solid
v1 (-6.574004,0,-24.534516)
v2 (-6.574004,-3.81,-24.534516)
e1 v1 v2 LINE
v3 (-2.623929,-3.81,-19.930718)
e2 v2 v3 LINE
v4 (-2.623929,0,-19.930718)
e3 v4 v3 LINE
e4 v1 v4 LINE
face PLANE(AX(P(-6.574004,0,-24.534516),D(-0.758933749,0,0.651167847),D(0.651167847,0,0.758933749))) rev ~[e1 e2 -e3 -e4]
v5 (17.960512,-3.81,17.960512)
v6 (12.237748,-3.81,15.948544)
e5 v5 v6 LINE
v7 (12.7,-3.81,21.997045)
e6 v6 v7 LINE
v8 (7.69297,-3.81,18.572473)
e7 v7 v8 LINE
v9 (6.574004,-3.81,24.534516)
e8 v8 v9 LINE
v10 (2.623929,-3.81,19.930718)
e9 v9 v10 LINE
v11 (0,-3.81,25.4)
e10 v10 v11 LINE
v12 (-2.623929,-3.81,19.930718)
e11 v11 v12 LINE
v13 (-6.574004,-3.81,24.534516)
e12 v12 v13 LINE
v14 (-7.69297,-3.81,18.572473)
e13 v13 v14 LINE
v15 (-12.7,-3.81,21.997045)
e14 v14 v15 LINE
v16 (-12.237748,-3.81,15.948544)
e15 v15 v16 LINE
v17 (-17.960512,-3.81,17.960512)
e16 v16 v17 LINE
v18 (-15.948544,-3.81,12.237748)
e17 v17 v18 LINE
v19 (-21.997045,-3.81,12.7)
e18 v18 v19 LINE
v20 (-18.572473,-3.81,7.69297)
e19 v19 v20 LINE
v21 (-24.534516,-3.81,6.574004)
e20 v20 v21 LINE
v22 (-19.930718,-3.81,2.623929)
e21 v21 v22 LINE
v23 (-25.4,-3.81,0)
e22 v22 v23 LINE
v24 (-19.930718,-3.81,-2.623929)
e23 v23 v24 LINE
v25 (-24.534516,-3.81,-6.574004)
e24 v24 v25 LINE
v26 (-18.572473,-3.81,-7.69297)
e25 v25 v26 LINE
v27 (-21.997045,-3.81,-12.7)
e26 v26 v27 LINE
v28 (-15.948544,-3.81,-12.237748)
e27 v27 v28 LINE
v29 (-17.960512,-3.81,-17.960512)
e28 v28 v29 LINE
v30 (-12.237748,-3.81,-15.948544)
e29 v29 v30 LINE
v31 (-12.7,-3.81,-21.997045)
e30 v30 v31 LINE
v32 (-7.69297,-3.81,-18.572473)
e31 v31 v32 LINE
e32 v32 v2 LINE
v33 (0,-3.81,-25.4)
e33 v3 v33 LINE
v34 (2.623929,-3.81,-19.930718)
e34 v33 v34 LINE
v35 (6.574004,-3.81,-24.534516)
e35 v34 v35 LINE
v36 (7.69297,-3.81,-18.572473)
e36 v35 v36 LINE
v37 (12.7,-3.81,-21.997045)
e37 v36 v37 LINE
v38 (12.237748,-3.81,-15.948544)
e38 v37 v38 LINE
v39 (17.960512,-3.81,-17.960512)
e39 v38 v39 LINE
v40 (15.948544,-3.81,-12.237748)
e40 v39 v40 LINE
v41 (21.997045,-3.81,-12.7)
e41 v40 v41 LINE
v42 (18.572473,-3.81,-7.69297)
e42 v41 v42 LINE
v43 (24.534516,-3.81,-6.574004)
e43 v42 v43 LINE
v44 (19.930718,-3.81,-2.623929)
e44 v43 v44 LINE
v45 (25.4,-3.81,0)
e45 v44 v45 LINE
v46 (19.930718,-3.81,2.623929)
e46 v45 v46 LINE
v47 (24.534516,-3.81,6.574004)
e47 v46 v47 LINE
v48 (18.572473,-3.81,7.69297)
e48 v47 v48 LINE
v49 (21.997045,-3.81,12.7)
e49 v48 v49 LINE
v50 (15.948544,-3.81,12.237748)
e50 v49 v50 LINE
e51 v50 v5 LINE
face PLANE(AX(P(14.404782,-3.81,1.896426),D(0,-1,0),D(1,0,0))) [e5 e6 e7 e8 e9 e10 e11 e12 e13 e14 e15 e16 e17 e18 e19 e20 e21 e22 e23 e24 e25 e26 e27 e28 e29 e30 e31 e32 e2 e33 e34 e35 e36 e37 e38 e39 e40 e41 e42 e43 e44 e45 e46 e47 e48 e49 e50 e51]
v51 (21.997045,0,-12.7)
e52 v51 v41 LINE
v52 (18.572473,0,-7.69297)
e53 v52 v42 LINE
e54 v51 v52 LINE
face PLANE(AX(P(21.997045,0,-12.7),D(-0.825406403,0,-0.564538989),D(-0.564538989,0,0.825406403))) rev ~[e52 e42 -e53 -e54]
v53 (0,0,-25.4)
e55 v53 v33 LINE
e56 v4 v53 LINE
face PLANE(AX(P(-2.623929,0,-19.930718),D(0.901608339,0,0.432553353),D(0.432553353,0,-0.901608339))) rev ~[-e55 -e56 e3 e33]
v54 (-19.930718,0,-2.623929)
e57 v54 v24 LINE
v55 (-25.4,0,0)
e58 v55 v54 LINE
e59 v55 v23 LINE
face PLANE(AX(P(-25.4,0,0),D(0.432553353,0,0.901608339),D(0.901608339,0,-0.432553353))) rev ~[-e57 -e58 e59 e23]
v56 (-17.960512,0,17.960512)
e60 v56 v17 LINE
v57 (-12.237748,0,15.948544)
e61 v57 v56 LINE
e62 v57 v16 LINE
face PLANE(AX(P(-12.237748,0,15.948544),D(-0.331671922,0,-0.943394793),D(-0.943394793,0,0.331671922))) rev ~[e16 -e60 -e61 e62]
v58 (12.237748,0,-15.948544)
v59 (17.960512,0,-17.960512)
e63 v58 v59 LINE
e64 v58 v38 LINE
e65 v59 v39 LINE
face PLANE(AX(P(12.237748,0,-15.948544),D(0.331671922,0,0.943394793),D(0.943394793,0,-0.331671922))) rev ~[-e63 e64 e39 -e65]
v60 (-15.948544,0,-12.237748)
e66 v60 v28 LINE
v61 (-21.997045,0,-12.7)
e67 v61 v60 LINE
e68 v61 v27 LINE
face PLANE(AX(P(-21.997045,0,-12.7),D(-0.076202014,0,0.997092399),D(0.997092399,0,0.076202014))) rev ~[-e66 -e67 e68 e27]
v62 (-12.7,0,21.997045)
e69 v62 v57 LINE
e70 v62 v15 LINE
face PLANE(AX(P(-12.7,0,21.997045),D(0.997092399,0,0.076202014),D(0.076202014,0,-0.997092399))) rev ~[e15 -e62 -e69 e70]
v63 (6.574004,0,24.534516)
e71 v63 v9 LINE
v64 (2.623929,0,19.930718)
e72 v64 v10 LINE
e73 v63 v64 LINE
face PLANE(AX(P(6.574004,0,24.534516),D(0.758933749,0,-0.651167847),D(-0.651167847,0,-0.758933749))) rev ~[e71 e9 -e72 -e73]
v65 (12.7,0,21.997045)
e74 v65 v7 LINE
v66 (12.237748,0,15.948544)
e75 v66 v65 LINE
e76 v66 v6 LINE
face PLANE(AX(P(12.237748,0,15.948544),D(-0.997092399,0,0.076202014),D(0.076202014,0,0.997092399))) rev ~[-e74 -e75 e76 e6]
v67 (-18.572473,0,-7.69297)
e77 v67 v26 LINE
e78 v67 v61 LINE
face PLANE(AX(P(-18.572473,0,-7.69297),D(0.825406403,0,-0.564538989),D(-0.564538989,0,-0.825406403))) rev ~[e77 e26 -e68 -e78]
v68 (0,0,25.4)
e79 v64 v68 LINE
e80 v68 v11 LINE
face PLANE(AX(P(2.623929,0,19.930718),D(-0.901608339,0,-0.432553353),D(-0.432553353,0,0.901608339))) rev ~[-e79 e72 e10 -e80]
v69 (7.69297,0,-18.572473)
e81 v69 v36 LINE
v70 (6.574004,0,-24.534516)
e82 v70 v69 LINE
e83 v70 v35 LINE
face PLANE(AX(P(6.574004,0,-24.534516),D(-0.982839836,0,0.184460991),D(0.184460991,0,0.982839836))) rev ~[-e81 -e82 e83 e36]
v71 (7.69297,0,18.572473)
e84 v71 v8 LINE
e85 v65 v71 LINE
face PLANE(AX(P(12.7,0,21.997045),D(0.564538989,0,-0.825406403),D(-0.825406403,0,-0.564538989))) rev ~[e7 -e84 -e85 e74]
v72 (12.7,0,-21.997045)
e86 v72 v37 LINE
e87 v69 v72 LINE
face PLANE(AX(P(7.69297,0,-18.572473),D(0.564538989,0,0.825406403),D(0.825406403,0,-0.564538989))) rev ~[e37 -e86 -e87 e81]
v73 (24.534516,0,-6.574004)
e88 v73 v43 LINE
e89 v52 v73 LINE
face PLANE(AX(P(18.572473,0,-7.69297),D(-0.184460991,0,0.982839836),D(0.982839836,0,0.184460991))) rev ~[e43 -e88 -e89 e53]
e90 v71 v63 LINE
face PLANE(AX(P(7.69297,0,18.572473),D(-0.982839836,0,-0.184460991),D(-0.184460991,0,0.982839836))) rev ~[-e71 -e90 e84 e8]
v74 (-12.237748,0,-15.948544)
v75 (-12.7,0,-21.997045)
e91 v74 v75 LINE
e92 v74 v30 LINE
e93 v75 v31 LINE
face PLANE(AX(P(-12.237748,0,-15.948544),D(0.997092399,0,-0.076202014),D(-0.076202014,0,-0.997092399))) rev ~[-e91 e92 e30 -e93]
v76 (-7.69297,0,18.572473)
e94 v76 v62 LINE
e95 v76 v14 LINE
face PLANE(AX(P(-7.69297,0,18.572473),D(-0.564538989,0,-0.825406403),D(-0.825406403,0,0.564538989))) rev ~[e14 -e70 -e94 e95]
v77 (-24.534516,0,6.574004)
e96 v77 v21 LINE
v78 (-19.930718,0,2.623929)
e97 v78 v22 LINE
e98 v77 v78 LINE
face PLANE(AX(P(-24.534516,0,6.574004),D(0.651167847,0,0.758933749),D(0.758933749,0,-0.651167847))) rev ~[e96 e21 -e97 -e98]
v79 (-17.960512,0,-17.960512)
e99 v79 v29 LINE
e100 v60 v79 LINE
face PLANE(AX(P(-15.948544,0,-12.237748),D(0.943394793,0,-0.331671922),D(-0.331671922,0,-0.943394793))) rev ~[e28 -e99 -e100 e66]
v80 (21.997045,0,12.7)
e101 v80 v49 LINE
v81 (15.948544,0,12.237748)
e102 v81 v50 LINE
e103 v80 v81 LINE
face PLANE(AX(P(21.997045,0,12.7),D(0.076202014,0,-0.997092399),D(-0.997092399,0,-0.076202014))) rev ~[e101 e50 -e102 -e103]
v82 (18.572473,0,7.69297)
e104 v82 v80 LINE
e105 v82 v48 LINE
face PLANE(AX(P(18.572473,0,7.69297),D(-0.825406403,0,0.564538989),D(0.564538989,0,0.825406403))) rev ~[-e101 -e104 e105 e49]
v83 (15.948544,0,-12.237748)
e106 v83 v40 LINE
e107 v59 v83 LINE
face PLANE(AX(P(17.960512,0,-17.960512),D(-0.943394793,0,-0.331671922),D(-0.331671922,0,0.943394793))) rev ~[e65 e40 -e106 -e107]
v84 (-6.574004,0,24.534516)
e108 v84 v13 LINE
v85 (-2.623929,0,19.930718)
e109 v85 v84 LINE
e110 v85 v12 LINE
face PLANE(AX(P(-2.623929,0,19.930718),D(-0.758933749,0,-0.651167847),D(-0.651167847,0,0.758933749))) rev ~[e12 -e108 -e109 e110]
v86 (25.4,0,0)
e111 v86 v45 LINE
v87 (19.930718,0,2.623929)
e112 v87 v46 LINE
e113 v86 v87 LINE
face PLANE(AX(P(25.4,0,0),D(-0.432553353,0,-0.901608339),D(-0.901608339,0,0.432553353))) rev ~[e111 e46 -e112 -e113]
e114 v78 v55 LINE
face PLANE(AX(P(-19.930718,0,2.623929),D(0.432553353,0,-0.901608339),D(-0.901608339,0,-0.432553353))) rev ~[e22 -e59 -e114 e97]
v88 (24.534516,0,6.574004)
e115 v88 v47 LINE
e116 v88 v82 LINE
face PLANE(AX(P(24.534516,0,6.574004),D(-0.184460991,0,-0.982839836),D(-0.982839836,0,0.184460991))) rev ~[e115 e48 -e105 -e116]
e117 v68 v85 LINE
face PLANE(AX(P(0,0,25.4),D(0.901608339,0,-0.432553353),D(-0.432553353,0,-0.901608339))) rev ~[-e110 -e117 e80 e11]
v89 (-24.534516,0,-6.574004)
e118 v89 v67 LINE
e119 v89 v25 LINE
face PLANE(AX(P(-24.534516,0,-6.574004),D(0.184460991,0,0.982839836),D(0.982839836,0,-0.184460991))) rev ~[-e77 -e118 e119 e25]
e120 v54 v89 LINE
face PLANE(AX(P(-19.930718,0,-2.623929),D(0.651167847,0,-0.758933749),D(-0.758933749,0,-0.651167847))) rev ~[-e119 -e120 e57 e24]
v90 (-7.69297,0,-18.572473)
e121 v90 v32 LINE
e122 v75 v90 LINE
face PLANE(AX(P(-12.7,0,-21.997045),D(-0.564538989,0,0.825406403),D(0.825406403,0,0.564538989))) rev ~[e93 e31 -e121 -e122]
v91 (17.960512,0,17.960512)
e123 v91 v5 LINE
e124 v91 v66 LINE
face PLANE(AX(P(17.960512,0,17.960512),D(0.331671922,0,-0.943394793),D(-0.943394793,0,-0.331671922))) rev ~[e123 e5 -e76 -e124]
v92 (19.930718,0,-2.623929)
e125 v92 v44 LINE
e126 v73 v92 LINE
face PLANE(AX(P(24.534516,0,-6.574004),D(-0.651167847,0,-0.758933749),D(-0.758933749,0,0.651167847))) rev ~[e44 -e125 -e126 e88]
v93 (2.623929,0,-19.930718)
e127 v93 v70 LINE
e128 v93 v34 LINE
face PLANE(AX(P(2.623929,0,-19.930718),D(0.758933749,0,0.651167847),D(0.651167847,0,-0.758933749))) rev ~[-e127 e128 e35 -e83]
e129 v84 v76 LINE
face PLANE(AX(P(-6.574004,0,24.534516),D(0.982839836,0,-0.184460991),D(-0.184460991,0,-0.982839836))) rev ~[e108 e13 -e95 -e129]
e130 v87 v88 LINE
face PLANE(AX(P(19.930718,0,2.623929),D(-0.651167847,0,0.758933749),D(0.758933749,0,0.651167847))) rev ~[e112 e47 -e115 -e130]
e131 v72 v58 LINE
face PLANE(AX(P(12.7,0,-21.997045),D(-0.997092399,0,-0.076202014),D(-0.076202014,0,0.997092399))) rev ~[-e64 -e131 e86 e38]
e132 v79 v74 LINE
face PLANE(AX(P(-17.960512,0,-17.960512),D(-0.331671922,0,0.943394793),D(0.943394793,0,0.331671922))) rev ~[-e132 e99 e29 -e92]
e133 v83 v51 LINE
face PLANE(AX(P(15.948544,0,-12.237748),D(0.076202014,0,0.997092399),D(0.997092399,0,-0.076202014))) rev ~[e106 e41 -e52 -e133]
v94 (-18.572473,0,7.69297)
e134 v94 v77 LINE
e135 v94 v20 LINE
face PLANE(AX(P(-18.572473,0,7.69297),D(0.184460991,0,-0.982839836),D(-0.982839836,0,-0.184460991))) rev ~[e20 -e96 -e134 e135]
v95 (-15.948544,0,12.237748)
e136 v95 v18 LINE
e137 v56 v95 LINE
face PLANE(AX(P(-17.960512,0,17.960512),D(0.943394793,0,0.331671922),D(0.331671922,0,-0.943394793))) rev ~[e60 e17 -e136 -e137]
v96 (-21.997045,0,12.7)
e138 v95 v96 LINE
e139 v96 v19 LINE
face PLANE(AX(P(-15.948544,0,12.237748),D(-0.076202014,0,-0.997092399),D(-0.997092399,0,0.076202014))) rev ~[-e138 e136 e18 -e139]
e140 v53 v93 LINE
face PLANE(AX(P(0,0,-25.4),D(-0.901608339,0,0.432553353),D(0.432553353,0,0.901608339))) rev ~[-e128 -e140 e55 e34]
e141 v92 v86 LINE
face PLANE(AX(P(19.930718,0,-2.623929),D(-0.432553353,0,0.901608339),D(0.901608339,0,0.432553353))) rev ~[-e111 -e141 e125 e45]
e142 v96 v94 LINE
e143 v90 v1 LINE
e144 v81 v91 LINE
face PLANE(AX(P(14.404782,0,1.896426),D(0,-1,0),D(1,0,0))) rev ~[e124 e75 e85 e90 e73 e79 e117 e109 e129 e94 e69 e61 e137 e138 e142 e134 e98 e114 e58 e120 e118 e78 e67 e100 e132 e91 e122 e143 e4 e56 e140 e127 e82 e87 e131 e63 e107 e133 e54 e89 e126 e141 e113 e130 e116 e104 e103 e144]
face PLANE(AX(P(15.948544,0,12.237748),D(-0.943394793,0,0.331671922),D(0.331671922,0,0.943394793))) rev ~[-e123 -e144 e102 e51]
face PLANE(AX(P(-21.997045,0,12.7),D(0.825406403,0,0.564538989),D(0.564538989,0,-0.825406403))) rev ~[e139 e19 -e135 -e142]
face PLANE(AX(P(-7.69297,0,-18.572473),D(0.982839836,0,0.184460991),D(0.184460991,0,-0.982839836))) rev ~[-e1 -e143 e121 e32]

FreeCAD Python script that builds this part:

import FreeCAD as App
import Part
import Sketcher

V = App.Vector
Q = App.Units.Quantity

doc = App.newDocument("Part")
params = doc.addObject("Spreadsheet::Sheet", "Params")
for row, (alias, value) in enumerate([
    ("pad1_length", "0.15 in"),
], start=1):
    params.set(f"A{row}", alias)
    params.set(f"B{row}", "=" + value)
    params.setAlias(f"B{row}", alias)

body = doc.addObject("PartDesign::Body", "Body")

# Sketch on XZ plane
sketch1 = body.newObject("Sketcher::SketchObject", "Sketch")
sketch1.AttachmentSupport = (doc.getObject("XZ_Plane"), [""])
sketch1.MapMode = "FlatFace"
sketch1.addGeometry(Part.LineSegment(V(25, -7, 0), V(20, -3, 0)), False)
sketch1.addGeometry(Part.LineSegment(V(20, -3, 0), V(25, 0, 0)), False)
sketch1.addGeometry(Part.LineSegment(V(25, 0, 0), V(20, 3, 0)), False)
sketch1.addGeometry(Part.LineSegment(V(20, 3, 0), V(25, 7, 0)), False)
sketch1.addGeometry(Part.LineSegment(V(25, 7, 0), V(19, 8, 0)), False)
sketch1.addGeometry(Part.LineSegment(V(19, 8, 0), V(22, 13, 0)), False)
sketch1.addGeometry(Part.LineSegment(V(22, 13, 0), V(16, 12, 0)), False)
sketch1.addGeometry(Part.LineSegment(V(16, 12, 0), V(18, 18, 0)), False)
sketch1.addGeometry(Part.LineSegment(V(18, 18, 0), V(12, 16, 0)), False)
sketch1.addGeometry(Part.LineSegment(V(12, 16, 0), V(13, 22, 0)), False)
sketch1.addGeometry(Part.LineSegment(V(13, 22, 0), V(8, 19, 0)), False)
sketch1.addGeometry(Part.LineSegment(V(8, 19, 0), V(7, 25, 0)), False)
sketch1.addGeometry(Part.LineSegment(V(7, 25, 0), V(3, 20, 0)), False)
sketch1.addGeometry(Part.LineSegment(V(3, 20, 0), V(0, 25, 0)), False)
sketch1.addGeometry(Part.LineSegment(V(0, 25, 0), V(-3, 20, 0)), False)
sketch1.addGeometry(Part.LineSegment(V(-3, 20, 0), V(-7, 25, 0)), False)
sketch1.addGeometry(Part.LineSegment(V(-7, 25, 0), V(-8, 19, 0)), False)
sketch1.addGeometry(Part.LineSegment(V(-8, 19, 0), V(-13, 22, 0)), False)
sketch1.addGeometry(Part.LineSegment(V(-13, 22, 0), V(-12, 16, 0)), False)
sketch1.addGeometry(Part.LineSegment(V(-12, 16, 0), V(-18, 18, 0)), False)
sketch1.addGeometry(Part.LineSegment(V(-18, 18, 0), V(-16, 12, 0)), False)
sketch1.addGeometry(Part.LineSegment(V(-16, 12, 0), V(-22, 13, 0)), False)
sketch1.addGeometry(Part.LineSegment(V(-22, 13, 0), V(-19, 8, 0)), False)
sketch1.addGeometry(Part.LineSegment(V(-19, 8, 0), V(-25, 7, 0)), False)
sketch1.addGeometry(Part.LineSegment(V(-25, 7, 0), V(-20, 3, 0)), False)
sketch1.addGeometry(Part.LineSegment(V(-20, 3, 0), V(-25, 0, 0)), False)
sketch1.addGeometry(Part.LineSegment(V(-25, 0, 0), V(-20, -3, 0)), False)
sketch1.addGeometry(Part.LineSegment(V(-20, -3, 0), V(-25, -7, 0)), False)
sketch1.addGeometry(Part.LineSegment(V(-25, -7, 0), V(-19, -8, 0)), False)
sketch1.addGeometry(Part.LineSegment(V(-19, -8, 0), V(-22, -13, 0)), False)
sketch1.addGeometry(Part.LineSegment(V(-22, -13, 0), V(-16, -12, 0)), False)
sketch1.addGeometry(Part.LineSegment(V(-16, -12, 0), V(-18, -18, 0)), False)
sketch1.addGeometry(Part.LineSegment(V(-18, -18, 0), V(-12, -16, 0)), False)
sketch1.addGeometry(Part.LineSegment(V(-12, -16, 0), V(-13, -22, 0)), False)
sketch1.addGeometry(Part.LineSegment(V(-13, -22, 0), V(-8, -19, 0)), False)
sketch1.addGeometry(Part.LineSegment(V(-8, -19, 0), V(-7, -25, 0)), False)
sketch1.addGeometry(Part.LineSegment(V(-7, -25, 0), V(-3, -20, 0)), False)
sketch1.addGeometry(Part.LineSegment(V(-3, -20, 0), V(0, -25, 0)), False)
sketch1.addGeometry(Part.LineSegment(V(0, -25, 0), V(3, -20, 0)), False)
sketch1.addGeometry(Part.LineSegment(V(3, -20, 0), V(7, -25, 0)), False)
sketch1.addGeometry(Part.LineSegment(V(7, -25, 0), V(8, -19, 0)), False)
sketch1.addGeometry(Part.LineSegment(V(8, -19, 0), V(13, -22, 0)), False)
sketch1.addGeometry(Part.LineSegment(V(13, -22, 0), V(12, -16, 0)), False)
sketch1.addGeometry(Part.LineSegment(V(12, -16, 0), V(18, -18, 0)), False)
sketch1.addGeometry(Part.LineSegment(V(18, -18, 0), V(16, -12, 0)), False)
sketch1.addGeometry(Part.LineSegment(V(16, -12, 0), V(22, -13, 0)), False)
sketch1.addGeometry(Part.LineSegment(V(22, -13, 0), V(19, -8, 0)), False)
sketch1.addGeometry(Part.LineSegment(V(19, -8, 0), V(25, -7, 0)), False)
sketch1.addConstraint(Sketcher.Constraint("Coincident", 0, 2, 1, 1))
sketch1.addConstraint(Sketcher.Constraint("Coincident", 1, 2, 2, 1))
sketch1.addConstraint(Sketcher.Constraint("Coincident", 2, 2, 3, 1))
sketch1.addConstraint(Sketcher.Constraint("Coincident", 3, 2, 4, 1))
sketch1.addConstraint(Sketcher.Constraint("Coincident", 4, 2, 5, 1))
sketch1.addConstraint(Sketcher.Constraint("Coincident", 5, 2, 6, 1))
sketch1.addConstraint(Sketcher.Constraint("Coincident", 6, 2, 7, 1))
sketch1.addConstraint(Sketcher.Constraint("Coincident", 7, 2, 8, 1))
sketch1.addConstraint(Sketcher.Constraint("Coincident", 8, 2, 9, 1))
sketch1.addConstraint(Sketcher.Constraint("Coincident", 9, 2, 10, 1))
sketch1.addConstraint(Sketcher.Constraint("Coincident", 10, 2, 11, 1))
sketch1.addConstraint(Sketcher.Constraint("Coincident", 11, 2, 12, 1))
sketch1.addConstraint(Sketcher.Constraint("Coincident", 12, 2, 13, 1))
sketch1.addConstraint(Sketcher.Constraint("Coincident", 13, 2, 14, 1))
sketch1.addConstraint(Sketcher.Constraint("Coincident", 14, 2, 15, 1))
sketch1.addConstraint(Sketcher.Constraint("Coincident", 15, 2, 16, 1))
sketch1.addConstraint(Sketcher.Constraint("Coincident", 16, 2, 17, 1))
sketch1.addConstraint(Sketcher.Constraint("Coincident", 17, 2, 18, 1))
sketch1.addConstraint(Sketcher.Constraint("Coincident", 18, 2, 19, 1))
sketch1.addConstraint(Sketcher.Constraint("Coincident", 19, 2, 20, 1))
sketch1.addConstraint(Sketcher.Constraint("Coincident", 20, 2, 21, 1))
sketch1.addConstraint(Sketcher.Constraint("Coincident", 21, 2, 22, 1))
sketch1.addConstraint(Sketcher.Constraint("Coincident", 22, 2, 23, 1))
sketch1.addConstraint(Sketcher.Constraint("Coincident", 23, 2, 24, 1))
sketch1.addConstraint(Sketcher.Constraint("Coincident", 24, 2, 25, 1))
sketch1.addConstraint(Sketcher.Constraint("Coincident", 25, 2, 26, 1))
sketch1.addConstraint(Sketcher.Constraint("Coincident", 26, 2, 27, 1))
sketch1.addConstraint(Sketcher.Constraint("Coincident", 27, 2, 28, 1))
sketch1.addConstraint(Sketcher.Constraint("Coincident", 28, 2, 29, 1))
sketch1.addConstraint(Sketcher.Constraint("Coincident", 29, 2, 30, 1))
sketch1.addConstraint(Sketcher.Constraint("Coincident", 30, 2, 31, 1))
sketch1.addConstraint(Sketcher.Constraint("Coincident", 31, 2, 32, 1))
sketch1.addConstraint(Sketcher.Constraint("Coincident", 32, 2, 33, 1))
sketch1.addConstraint(Sketcher.Constraint("Coincident", 33, 2, 34, 1))
sketch1.addConstraint(Sketcher.Constraint("Coincident", 34, 2, 35, 1))
sketch1.addConstraint(Sketcher.Constraint("Coincident", 35, 2, 36, 1))
sketch1.addConstraint(Sketcher.Constraint("Coincident", 36, 2, 37, 1))
sketch1.addConstraint(Sketcher.Constraint("Coincident", 37, 2, 38, 1))
sketch1.addConstraint(Sketcher.Constraint("Coincident", 38, 2, 39, 1))
sketch1.addConstraint(Sketcher.Constraint("Coincident", 39, 2, 40, 1))
sketch1.addConstraint(Sketcher.Constraint("Coincident", 40, 2, 41, 1))
sketch1.addConstraint(Sketcher.Constraint("Coincident", 41, 2, 42, 1))
sketch1.addConstraint(Sketcher.Constraint("Coincident", 42, 2, 43, 1))
sketch1.addConstraint(Sketcher.Constraint("Coincident", 43, 2, 44, 1))
sketch1.addConstraint(Sketcher.Constraint("Coincident", 44, 2, 45, 1))
sketch1.addConstraint(Sketcher.Constraint("Coincident", 45, 2, 46, 1))
sketch1.addConstraint(Sketcher.Constraint("Coincident", 46, 2, 47, 1))
sketch1.addConstraint(Sketcher.Constraint("Coincident", 47, 2, 0, 1))
sketch1.addConstraint(Sketcher.Constraint("Symmetric", 0, 2, 24, 2, -1, 1))
sketch1.addConstraint(Sketcher.Constraint("Symmetric", 1, 2, 25, 2, -1, 1))
sketch1.addConstraint(Sketcher.Constraint("Symmetric", 2, 2, 26, 2, -1, 1))
sketch1.addConstraint(Sketcher.Constraint("Symmetric", 3, 2, 27, 2, -1, 1))
sketch1.addConstraint(Sketcher.Constraint("Symmetric", 4, 2, 28, 2, -1, 1))
sketch1.addConstraint(Sketcher.Constraint("Symmetric", 5, 2, 29, 2, -1, 1))
sketch1.addConstraint(Sketcher.Constraint("Symmetric", 6, 2, 30, 2, -1, 1))
sketch1.addConstraint(Sketcher.Constraint("Symmetric", 7, 2, 31, 2, -1, 1))
sketch1.addConstraint(Sketcher.Constraint("Symmetric", 8, 2, 32, 2, -1, 1))
sketch1.addConstraint(Sketcher.Constraint("Symmetric", 9, 2, 33, 2, -1, 1))
sketch1.addConstraint(Sketcher.Constraint("Symmetric", 10, 2, 34, 2, -1, 1))
sketch1.addConstraint(Sketcher.Constraint("Symmetric", 11, 2, 35, 2, -1, 1))
sketch1.addConstraint(Sketcher.Constraint("Symmetric", 12, 2, 36, 2, -1, 1))
sketch1.addConstraint(Sketcher.Constraint("Symmetric", 13, 2, 37, 2, -1, 1))
sketch1.addConstraint(Sketcher.Constraint("Symmetric", 14, 2, 38, 2, -1, 1))
sketch1.addConstraint(Sketcher.Constraint("Symmetric", 15, 2, 39, 2, -1, 1))
sketch1.addConstraint(Sketcher.Constraint("Symmetric", 16, 2, 40, 2, -1, 1))
sketch1.addConstraint(Sketcher.Constraint("Symmetric", 17, 2, 41, 2, -1, 1))
sketch1.addConstraint(Sketcher.Constraint("Symmetric", 18, 2, 42, 2, -1, 1))
sketch1.addConstraint(Sketcher.Constraint("Symmetric", 19, 2, 43, 2, -1, 1))
sketch1.addConstraint(Sketcher.Constraint("Symmetric", 20, 2, 44, 2, -1, 1))
sketch1.addConstraint(Sketcher.Constraint("Symmetric", 21, 2, 45, 2, -1, 1))
sketch1.addConstraint(Sketcher.Constraint("Symmetric", 22, 2, 46, 2, -1, 1))
sketch1.addConstraint(Sketcher.Constraint("Symmetric", 23, 2, 47, 2, -1, 1))
sketch1.addConstraint(Sketcher.Constraint("Symmetric", 12, 2, 14, 2, -2))
sketch1.addConstraint(Sketcher.Constraint("Symmetric", 11, 2, 15, 2, -2))
sketch1.addConstraint(Sketcher.Constraint("Symmetric", 10, 2, 16, 2, -2))
sketch1.addConstraint(Sketcher.Constraint("Symmetric", 9, 2, 17, 2, -2))
sketch1.addConstraint(Sketcher.Constraint("Symmetric", 8, 2, 18, 2, -2))
sketch1.addConstraint(Sketcher.Constraint("Symmetric", 7, 2, 19, 2, -2))
sketch1.addConstraint(Sketcher.Constraint("Symmetric", 6, 2, 20, 2, -2))
sketch1.addConstraint(Sketcher.Constraint("Symmetric", 5, 2, 21, 2, -2))
sketch1.addConstraint(Sketcher.Constraint("Symmetric", 4, 2, 22, 2, -2))
sketch1.addConstraint(Sketcher.Constraint("Symmetric", 3, 2, 23, 2, -2))
sketch1.addConstraint(Sketcher.Constraint("Symmetric", 2, 2, 24, 2, -2))
sketch1.addConstraint(Sketcher.Constraint("PointOnObject", 1, 2, -1))
sketch1.addConstraint(Sketcher.Constraint("PointOnObject", 13, 2, -2))
sketch1.addConstraint(Sketcher.Constraint("Perpendicular", 0, 12))
sketch1.addConstraint(Sketcher.Constraint("Perpendicular", 1, 13))
sketch1.addConstraint(Sketcher.Constraint("Perpendicular", 4, 16))
sketch1.addConstraint(Sketcher.Constraint("Perpendicular", 5, 17))
sketch1.addConstraint(Sketcher.Constraint("Perpendicular", 6, 18))
sketch1.addConstraint(Sketcher.Constraint("Perpendicular", 7, 19))
sketch1.addConstraint(Sketcher.Constraint("Equal", 0, 1))
sketch1.addConstraint(Sketcher.Constraint("Equal", 3, 4))
sketch1.addConstraint(Sketcher.Constraint("Equal", 4, 5))
sketch1.addConstraint(Sketcher.Constraint("Equal", 5, 6))
sketch1.addConstraint(Sketcher.Constraint("Equal", 6, 7))
sketch1.addConstraint(Sketcher.Constraint("Equal", 7, 8))
sketch1.addConstraint(Sketcher.Constraint("Equal", 8, 9))
sketch1.addConstraint(Sketcher.Constraint("Equal", 9, 10))
sketch1.addConstraint(Sketcher.Constraint("Equal", 10, 11))
sketch1.addConstraint(Sketcher.Constraint("Equal", 11, 12))
sketch1.addConstraint(Sketcher.Constraint("Equal", 12, 13))
sketch1.addConstraint(Sketcher.Constraint("DistanceX", -1, 1, 1, 2, Q("1 in")))
sketch1.addConstraint(Sketcher.Constraint("DistanceY", -1, 1, 5, 2, Q("0.5 in")))
sketch1.addConstraint(Sketcher.Constraint("DistanceX", 2, 2, 3, 2, 4.603798))
sketch1.addConstraint(Sketcher.Constraint("DistanceY", 0, 2, 4, 2, 10.316899))
sketch1.addConstraint(Sketcher.Constraint("DistanceX", 6, 2, 5, 2, 6.048501))
sketch1.addConstraint(Sketcher.Constraint("Distance", 0, 6.06614))
sketch1.addConstraint(Sketcher.Constraint("DistanceY", 0, 2, -1, 1, 2.623929))
pad1 = body.newObject("PartDesign::Pad", "Pad")
pad1.Profile = sketch1
pad1.setExpression("Length", "Params.pad1_length")

doc.recompute()
